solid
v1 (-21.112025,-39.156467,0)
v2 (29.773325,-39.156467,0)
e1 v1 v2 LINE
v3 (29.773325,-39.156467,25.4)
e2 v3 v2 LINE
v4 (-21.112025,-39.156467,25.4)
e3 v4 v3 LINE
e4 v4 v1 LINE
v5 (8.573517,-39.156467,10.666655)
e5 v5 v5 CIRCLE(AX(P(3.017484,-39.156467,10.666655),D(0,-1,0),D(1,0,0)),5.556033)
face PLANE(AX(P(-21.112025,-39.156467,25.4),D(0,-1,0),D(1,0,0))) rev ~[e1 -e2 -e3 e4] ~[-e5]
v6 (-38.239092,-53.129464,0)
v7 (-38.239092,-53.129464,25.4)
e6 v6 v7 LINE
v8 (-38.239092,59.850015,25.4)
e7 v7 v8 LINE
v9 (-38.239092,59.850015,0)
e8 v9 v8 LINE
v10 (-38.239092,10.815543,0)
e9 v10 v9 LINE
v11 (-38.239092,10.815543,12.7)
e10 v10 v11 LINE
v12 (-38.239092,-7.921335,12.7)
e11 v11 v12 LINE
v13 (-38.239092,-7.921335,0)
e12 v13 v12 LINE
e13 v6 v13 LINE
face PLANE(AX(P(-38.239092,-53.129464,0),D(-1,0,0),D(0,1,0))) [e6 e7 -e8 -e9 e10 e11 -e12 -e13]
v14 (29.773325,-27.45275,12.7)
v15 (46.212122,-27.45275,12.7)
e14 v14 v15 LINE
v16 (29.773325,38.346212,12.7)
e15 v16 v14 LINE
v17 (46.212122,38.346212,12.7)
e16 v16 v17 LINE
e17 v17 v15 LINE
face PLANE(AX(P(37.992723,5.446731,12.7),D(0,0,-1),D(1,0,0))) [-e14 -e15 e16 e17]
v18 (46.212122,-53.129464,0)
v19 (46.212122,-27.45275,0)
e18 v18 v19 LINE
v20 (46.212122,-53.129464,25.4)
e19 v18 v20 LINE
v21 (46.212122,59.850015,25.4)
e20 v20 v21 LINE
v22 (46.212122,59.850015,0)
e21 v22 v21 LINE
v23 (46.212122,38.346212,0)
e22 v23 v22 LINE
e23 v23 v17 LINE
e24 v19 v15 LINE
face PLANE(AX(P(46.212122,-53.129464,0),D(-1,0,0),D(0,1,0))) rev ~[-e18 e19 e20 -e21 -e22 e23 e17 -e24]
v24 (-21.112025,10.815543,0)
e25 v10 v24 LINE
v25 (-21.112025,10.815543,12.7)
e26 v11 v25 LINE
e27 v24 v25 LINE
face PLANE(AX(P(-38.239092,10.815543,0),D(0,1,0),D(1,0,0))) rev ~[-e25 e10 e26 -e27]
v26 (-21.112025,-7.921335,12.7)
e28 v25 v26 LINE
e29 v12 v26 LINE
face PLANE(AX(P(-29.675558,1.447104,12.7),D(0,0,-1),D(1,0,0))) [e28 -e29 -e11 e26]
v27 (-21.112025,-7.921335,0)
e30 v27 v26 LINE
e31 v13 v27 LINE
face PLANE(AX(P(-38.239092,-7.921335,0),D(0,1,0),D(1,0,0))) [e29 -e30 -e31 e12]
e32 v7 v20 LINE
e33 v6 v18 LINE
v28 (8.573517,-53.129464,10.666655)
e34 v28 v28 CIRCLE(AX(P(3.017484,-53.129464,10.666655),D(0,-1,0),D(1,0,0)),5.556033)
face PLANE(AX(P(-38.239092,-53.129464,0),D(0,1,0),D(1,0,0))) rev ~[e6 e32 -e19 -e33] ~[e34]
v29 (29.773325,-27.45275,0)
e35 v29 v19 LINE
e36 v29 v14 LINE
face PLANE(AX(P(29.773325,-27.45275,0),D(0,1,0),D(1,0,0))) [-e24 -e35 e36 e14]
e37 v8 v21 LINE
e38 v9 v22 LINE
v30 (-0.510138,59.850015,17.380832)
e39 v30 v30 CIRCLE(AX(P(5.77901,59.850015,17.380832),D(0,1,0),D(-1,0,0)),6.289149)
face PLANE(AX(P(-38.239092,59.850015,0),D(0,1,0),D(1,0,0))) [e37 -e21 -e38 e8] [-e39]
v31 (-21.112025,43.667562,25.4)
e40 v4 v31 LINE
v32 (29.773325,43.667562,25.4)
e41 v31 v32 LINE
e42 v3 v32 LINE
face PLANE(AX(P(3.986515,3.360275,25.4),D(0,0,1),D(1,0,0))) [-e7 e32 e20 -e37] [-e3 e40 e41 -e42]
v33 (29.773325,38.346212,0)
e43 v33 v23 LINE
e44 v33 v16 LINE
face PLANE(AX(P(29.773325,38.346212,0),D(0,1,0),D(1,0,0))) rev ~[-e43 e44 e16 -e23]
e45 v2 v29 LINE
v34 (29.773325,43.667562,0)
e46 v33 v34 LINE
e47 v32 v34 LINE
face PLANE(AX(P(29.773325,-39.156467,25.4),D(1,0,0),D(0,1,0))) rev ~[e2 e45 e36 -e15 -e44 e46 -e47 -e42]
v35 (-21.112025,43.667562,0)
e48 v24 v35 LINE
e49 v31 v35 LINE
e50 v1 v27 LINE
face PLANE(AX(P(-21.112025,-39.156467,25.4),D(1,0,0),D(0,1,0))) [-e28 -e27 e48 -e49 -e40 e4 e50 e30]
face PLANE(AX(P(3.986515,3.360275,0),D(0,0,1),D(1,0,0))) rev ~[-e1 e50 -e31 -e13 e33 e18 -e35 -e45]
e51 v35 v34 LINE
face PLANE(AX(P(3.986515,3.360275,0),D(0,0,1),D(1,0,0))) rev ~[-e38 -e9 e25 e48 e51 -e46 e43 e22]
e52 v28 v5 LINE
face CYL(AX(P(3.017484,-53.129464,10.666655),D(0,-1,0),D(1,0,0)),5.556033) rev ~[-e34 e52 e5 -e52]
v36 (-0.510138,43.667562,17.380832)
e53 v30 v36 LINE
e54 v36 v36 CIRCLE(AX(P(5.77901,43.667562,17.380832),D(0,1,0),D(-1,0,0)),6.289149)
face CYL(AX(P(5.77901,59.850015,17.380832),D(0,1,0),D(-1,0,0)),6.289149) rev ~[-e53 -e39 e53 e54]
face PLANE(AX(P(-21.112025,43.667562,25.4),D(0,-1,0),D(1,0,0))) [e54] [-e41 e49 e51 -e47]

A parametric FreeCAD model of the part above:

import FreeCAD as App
import Part
import Sketcher
from FreeCAD import Vector
Q = App.Units.Quantity


def add_polygon(sketch, points):
    """Adds a closed chain of lines whose ends are joined by coincident constraints."""
    first, n = sketch.GeometryCount, len(points)
    for a, b in zip(points, points[1:] + points[:1]):
        sketch.addGeometry(Part.LineSegment(App.Vector(*a, 0), App.Vector(*b, 0)), False)
    for i in range(n):
        sketch.addConstraint(Sketcher.Constraint("Coincident", first + i, 2, first + (i + 1) % n, 1))

doc = App.newDocument("Part")
body = doc.addObject("PartDesign::Body", "Body")

sketch1 = body.newObject("Sketcher::SketchObject", "Sketch")
sketch1.AttachmentSupport = (doc.getObject("XY_Plane"), [""])
sketch1.MapMode = "FlatFace"
add_polygon(sketch1, [(-38, 60), (-38, -53), (46, -53), (46, 60)])
sketch1.addConstraint([
    Sketcher.Constraint("Vertical", 0),
    Sketcher.Constraint("Horizontal", 1),
    Sketcher.Constraint("Vertical", 2),
    Sketcher.Constraint("Horizontal", 3),
    Sketcher.Constraint("DistanceY", 0, 2, 0, 1, 112.979479),
    Sketcher.Constraint("DistanceX", 1, 1, 1, 2, 84.451213),
    Sketcher.Constraint("DistanceX", 0, 2, -1, 1, 38.239092),
    Sketcher.Constraint("DistanceY", 0, 2, -1, 1, 53.129464),
])
pad1 = body.newObject("PartDesign::Pad", "Pad")
pad1.Profile = sketch1
pad1.Length = Q("1 in")

sketch2 = body.newObject("Sketcher::SketchObject", "Sketch001")
sketch2.AttachmentSupport = (doc.getObject("XY_Plane"), [""])
sketch2.MapMode = "FlatFace"
sketch2.AttachmentOffset = App.Placement(Vector(0, 0, 1 * 25.4), App.Rotation())
add_polygon(sketch2, [(-21, 44), (-21, -39), (30, -39), (30, 44)])
sketch2.addConstraint([
    Sketcher.Constraint("Vertical", 0),
    Sketcher.Constraint("Horizontal", 1),
    Sketcher.Constraint("Vertical", 2),
    Sketcher.Constraint("Horizontal", 3),
    Sketcher.Constraint("DistanceX", 1, 1, 1, 2, 50.88535),
    Sketcher.Constraint("DistanceY", 0, 2, 0, 1, 82.824029),
    Sketcher.Constraint("DistanceX", 0, 2, -1, 1, 21.112025),
    Sketcher.Constraint("DistanceY", 0, 2, -1, 1, 39.156467),
])
pocket1 = body.newObject("PartDesign::Pocket", "Pocket")
pocket1.Profile = sketch2
pocket1.Length = Q("1 in")

sketch3 = body.newObject("Sketcher::SketchObject", "Sketch002")
sketch3.AttachmentSupport = (doc.getObject("XZ_Plane"), [""])
sketch3.MapMode = "FlatFace"
sketch3.AttachmentOffset = App.Placement(Vector(0, 0, -59.850015), App.Rotation())
sketch3.addGeometry(Part.Circle(Vector(6, 17, 0), Vector(0, 0, 1), 6), False)
sketch3.addConstraint([
    Sketcher.Constraint("Diameter", 0, 12.578297),
    Sketcher.Constraint("DistanceX", -1, 1, 0, 3, 5.77901),
    Sketcher.Constraint("DistanceY", -1, 1, 0, 3, 17.380832),
])
pocket2 = body.newObject("PartDesign::Pocket", "Pocket001")
pocket2.Profile = sketch3
pocket2.Length = Q("1 in")
pocket2.Reversed = True

sketch4 = body.newObject("Sketcher::SketchObject", "Sketch003")
sketch4.AttachmentSupport = (doc.getObject("XZ_Plane"), [""])
sketch4.MapMode = "FlatFace"
sketch4.AttachmentOffset = App.Placement(Vector(0, 0, 53.129464), App.Rotation())
sketch4.addGeometry(Part.Circle(Vector(3, 11, 0), Vector(0, 0, 1), 6), False)
sketch4.addConstraint([
    Sketcher.Constraint("Diameter", 0, 11.112065),
    Sketcher.Constraint("DistanceX", -1, 1, 0, 3, 3.017484),
    Sketcher.Constraint("DistanceY", -1, 1, 0, 3, 10.666655),
])
pocket3 = body.newObject("PartDesign::Pocket", "Pocket002")
pocket3.Profile = sketch4
pocket3.Length = Q("1 in")

sketch5 = body.newObject("Sketcher::SketchObject", "Sketch004")
sketch5.AttachmentSupport = (doc.getObject("XY_Plane"), [""])
sketch5.MapMode = "FlatFace"
add_polygon(sketch5, [(-38, -8), (-38, 11), (-21, 11), (-21, -8)])
sketch5.addConstraint([
    Sketcher.Constraint("Vertical", 0),
    Sketcher.Constraint("Horizontal", 1),
    Sketcher.Constraint("Vertical", 2),
    Sketcher.Constraint("Horizontal", 3),
    Sketcher.Constraint("DistanceY", 0, 1, 0, 2, 18.736878),
    Sketcher.Constraint("DistanceX", 1, 1, 1, 2, 17.127067),
    Sketcher.Constraint("DistanceX", 0, 2, -1, 1, 38.239092),
    Sketcher.Constraint("DistanceY", -1, 1, 0, 2, 10.815543),
])
pocket4 = body.newObject("PartDesign::Pocket", "Pocket003")
pocket4.Profile = sketch5
pocket4.Length = Q("0.5 in")
pocket4.Reversed = True

sketch6 = body.newObject("Sketcher::SketchObject", "Sketch005")
sketch6.AttachmentSupport = (doc.getObject("XY_Plane"), [""])
sketch6.MapMode = "FlatFace"
add_polygon(sketch6, [(30, -27), (30, 38), (46, 38), (46, -27)])
sketch6.addConstraint([
    Sketcher.Constraint("Vertical", 0),
    Sketcher.Constraint("Horizontal", 1),
    Sketcher.Constraint("Vertical", 2),
    Sketcher.Constraint("Horizontal", 3),
    Sketcher.Constraint("DistanceX", 1, 1, 1, 2, 16.438797),
    Sketcher.Constraint("DistanceY", 0, 1, 0, 2, 65.798962),
    Sketcher.Constraint("DistanceX", -1, 1, 1, 2, 46.212122),
    Sketcher.Constraint("DistanceY", 2, 2, -1, 1, 27.45275),
])
pocket5 = body.newObject("PartDesign::Pocket", "Pocket004")
pocket5.Profile = sketch6
pocket5.Length = Q("0.5 in")
pocket5.Reversed = True

doc.recompute()
